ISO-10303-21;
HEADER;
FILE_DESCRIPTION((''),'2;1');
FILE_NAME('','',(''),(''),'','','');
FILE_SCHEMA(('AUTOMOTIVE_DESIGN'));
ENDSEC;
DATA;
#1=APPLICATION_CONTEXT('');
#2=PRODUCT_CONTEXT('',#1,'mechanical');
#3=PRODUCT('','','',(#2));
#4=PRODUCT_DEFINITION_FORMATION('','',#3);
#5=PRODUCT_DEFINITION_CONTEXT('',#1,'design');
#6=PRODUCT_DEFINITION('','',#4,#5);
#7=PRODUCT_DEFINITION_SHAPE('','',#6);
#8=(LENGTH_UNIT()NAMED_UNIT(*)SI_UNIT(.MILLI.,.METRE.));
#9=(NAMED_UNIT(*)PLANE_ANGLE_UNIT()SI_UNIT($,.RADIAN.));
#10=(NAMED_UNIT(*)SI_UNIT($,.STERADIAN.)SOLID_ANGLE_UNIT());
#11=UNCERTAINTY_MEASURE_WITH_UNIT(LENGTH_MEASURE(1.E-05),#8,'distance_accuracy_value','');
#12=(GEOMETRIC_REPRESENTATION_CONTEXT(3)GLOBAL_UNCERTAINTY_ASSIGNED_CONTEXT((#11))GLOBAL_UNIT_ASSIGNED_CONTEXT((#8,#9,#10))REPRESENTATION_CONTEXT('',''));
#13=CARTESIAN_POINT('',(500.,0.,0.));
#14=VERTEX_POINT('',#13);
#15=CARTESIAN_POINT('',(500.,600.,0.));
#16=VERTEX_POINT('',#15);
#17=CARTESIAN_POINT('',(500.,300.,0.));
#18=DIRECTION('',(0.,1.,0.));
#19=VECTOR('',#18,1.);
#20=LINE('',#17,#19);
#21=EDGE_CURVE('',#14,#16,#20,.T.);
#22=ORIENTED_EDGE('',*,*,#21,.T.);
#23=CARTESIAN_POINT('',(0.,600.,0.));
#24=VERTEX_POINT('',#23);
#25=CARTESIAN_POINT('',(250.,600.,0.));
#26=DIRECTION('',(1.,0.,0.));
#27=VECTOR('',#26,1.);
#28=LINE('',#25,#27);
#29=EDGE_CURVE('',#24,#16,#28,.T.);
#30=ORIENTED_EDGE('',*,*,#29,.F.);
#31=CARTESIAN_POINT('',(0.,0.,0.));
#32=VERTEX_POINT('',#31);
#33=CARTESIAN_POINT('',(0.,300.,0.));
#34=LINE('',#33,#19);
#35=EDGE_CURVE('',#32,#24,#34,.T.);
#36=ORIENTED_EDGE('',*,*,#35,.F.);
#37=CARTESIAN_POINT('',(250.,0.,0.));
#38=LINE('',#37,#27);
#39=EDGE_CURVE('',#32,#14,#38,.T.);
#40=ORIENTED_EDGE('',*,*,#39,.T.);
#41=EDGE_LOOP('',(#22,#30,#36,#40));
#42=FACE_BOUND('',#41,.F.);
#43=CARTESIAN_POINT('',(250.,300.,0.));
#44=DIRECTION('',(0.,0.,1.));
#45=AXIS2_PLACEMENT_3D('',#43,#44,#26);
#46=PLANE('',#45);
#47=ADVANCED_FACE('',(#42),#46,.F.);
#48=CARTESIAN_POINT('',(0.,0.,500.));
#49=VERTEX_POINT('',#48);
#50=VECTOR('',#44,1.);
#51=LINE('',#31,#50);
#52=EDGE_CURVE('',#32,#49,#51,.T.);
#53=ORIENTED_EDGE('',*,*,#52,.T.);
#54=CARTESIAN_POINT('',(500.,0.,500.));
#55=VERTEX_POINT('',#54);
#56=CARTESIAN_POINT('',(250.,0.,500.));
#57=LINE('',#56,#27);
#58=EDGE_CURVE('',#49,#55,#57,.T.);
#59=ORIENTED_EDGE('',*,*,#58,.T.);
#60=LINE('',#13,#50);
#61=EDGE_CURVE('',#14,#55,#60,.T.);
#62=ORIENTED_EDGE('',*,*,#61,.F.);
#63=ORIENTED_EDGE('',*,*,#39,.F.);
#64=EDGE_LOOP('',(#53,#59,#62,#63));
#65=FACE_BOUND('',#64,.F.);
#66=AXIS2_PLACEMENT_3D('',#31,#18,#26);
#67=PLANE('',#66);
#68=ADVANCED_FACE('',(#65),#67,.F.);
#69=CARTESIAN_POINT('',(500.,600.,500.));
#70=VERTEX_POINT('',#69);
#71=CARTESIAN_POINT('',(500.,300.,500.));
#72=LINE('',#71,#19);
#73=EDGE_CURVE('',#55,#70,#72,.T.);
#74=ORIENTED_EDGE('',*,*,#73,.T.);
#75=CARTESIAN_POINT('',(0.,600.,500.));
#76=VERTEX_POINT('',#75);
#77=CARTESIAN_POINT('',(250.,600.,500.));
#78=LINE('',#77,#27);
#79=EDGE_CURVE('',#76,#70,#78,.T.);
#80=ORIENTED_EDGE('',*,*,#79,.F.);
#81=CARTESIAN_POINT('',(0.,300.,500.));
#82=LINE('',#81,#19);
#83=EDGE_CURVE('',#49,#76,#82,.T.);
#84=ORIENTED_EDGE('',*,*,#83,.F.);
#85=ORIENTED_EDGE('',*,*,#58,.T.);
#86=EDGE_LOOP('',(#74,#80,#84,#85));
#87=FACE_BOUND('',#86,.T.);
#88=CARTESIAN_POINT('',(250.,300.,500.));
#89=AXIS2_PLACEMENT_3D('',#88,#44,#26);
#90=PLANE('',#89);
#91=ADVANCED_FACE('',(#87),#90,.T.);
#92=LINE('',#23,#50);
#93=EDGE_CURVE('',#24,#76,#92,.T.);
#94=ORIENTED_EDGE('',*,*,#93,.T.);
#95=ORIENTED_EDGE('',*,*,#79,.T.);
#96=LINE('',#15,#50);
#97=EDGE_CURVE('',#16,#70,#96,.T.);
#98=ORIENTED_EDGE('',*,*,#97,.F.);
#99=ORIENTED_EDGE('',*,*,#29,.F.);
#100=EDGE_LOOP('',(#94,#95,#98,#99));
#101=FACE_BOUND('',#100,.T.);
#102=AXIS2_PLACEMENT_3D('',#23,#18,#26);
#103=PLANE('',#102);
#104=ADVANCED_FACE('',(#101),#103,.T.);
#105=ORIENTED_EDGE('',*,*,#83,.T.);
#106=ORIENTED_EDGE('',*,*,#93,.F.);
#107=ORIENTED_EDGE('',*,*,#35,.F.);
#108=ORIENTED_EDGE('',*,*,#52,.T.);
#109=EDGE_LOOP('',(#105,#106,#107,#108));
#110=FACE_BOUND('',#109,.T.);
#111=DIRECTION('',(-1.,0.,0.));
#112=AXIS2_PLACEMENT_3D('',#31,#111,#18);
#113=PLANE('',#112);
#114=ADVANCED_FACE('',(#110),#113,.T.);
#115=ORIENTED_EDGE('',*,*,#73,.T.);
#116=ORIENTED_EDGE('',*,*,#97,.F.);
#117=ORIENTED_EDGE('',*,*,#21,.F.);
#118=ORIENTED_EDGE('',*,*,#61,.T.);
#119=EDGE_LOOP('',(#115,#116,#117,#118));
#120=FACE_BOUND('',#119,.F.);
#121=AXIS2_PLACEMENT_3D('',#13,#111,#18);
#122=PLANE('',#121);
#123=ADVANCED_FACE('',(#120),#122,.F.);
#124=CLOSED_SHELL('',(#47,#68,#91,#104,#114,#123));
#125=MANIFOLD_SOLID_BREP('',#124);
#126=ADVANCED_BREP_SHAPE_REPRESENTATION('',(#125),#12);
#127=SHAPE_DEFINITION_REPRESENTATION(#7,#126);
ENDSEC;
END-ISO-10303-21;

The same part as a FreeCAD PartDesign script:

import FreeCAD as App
import Part
import Sketcher

doc = App.newDocument("Part")
body = doc.addObject("PartDesign::Body", "Body")

# Sketch on XY plane
sketch1 = body.newObject("Sketcher::SketchObject", "Sketch")
sketch1.AttachmentSupport = (doc.getObject("XY_Plane"), [""])
sketch1.MapMode = "FlatFace"
sketch1.addGeometry([
    Part.LineSegment(App.Vector(0, 600, 0), App.Vector(0, 0, 0)),
    Part.LineSegment(App.Vector(0, 0, 0), App.Vector(500, 0, 0)),
    Part.LineSegment(App.Vector(500, 0, 0), App.Vector(500, 600, 0)),
    Part.LineSegment(App.Vector(500, 600, 0), App.Vector(0, 600, 0)),
], False)
sketch1.addConstraint([
    Sketcher.Constraint("Coincident", 0, 2, 1, 1),
    Sketcher.Constraint("Coincident", 1, 2, 2, 1),
    Sketcher.Constraint("Coincident", 2, 2, 3, 1),
    Sketcher.Constraint("Coincident", 3, 2, 0, 1),
    Sketcher.Constraint("Vertical", 0),
    Sketcher.Constraint("Horizontal", 1),
    Sketcher.Constraint("Vertical", 2),
    Sketcher.Constraint("Horizontal", 3),
    Sketcher.Constraint("Coincident", 0, 2, -1, 1),
    Sketcher.Constraint("DistanceX", 1, 1, 1, 2, 500.0),
    Sketcher.Constraint("DistanceY", 0, 2, 0, 1, 600.0),
])
pad1 = body.newObject("PartDesign::Pad", "Pad")
pad1.Profile = sketch1
pad1.Length = 500

doc.recompute()
